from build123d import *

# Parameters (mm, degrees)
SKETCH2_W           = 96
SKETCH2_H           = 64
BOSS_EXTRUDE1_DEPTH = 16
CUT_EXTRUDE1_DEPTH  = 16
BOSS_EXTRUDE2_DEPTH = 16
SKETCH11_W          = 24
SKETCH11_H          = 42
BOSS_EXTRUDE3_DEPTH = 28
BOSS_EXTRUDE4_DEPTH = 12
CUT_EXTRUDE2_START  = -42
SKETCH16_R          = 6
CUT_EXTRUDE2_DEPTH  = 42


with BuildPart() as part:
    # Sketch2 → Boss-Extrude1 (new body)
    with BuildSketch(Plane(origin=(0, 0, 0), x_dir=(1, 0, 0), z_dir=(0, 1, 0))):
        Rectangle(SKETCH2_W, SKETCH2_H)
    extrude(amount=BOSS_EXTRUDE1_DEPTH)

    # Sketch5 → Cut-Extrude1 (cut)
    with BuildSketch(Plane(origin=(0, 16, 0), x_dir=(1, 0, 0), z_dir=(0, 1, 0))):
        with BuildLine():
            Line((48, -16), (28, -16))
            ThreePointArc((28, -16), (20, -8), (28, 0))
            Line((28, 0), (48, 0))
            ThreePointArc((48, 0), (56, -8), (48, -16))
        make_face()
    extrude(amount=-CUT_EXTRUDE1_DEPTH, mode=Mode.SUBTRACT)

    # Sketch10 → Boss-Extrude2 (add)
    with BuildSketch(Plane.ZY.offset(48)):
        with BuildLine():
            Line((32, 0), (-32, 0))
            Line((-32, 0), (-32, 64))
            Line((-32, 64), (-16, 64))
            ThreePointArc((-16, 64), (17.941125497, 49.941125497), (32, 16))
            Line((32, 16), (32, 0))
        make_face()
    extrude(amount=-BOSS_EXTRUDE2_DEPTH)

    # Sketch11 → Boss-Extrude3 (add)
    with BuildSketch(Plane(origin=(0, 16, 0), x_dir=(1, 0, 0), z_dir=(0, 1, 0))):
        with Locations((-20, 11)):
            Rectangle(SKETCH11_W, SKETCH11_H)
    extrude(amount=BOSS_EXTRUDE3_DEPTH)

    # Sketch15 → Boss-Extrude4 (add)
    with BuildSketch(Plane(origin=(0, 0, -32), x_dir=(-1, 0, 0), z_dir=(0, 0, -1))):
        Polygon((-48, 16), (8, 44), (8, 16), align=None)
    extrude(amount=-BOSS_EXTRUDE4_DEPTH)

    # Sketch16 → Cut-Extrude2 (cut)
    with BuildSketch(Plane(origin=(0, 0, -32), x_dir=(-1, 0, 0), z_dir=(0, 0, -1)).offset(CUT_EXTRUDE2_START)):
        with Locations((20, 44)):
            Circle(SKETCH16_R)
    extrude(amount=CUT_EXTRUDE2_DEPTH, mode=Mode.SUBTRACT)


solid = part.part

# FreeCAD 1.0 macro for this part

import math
import FreeCAD as App
import Part
import Sketcher

V = App.Vector
Q = App.Units.Quantity


def add_polygon(sketch, points):
    """Adds a closed chain of lines whose ends are joined by coincident constraints."""
    first, n = sketch.GeometryCount, len(points)
    for a, b in zip(points, points[1:] + points[:1]):
        sketch.addGeometry(Part.LineSegment(App.Vector(*a, 0), App.Vector(*b, 0)), False)
    for i in range(n):
        sketch.addConstraint(Sketcher.Constraint("Coincident", first + i, 2, first + (i + 1) % n, 1))

doc = App.newDocument("Part")
body = doc.addObject("PartDesign::Body", "Body")

# Sketch on XZ plane
sketch1 = body.newObject("Sketcher::SketchObject", "Sketch")
sketch1.AttachmentSupport = (doc.getObject("XZ_Plane"), [""])
sketch1.MapMode = "FlatFace"
add_polygon(sketch1, [(-48, -32), (-48, 32), (48, 32), (48, -32)])  # lines 0-3
sketch1.addConstraint([
    Sketcher.Constraint("Vertical", 0),
    Sketcher.Constraint("Horizontal", 1),
    Sketcher.Constraint("Vertical", 2),
    Sketcher.Constraint("Horizontal", 3),
    Sketcher.Constraint("Symmetric", 0, 2, 2, 2, -1, 1),
    Sketcher.Constraint("DistanceX", 1, 1, 1, 2, Q("96 mm")),
    Sketcher.Constraint("DistanceY", 0, 1, 0, 2, Q("64 mm")),
])
pad1 = body.newObject("PartDesign::Pad", "Pad")
pad1.Profile = sketch1
pad1.Length = 16
pad1.Reversed = True

# Sketch on XZ plane
sketch2 = body.newObject("Sketcher::SketchObject", "Sketch001")
sketch2.AttachmentSupport = (doc.getObject("XZ_Plane"), [""])
sketch2.MapMode = "FlatFace"
sketch2.AttachmentOffset = App.Placement(V(0, 0, -16), App.Rotation())
sketch2.addGeometry([
    Part.LineSegment(V(28, 16, 0), V(48, 16, 0)),
    Part.ArcOfCircle(Part.Circle(V(48, 8, 0), V(0, 0, 1), 8), math.radians(-90), math.radians(90)),
    Part.LineSegment(V(48, 0, 0), V(28, 0, 0)),
    Part.ArcOfCircle(Part.Circle(V(28, 8, 0), V(0, 0, 1), 8), math.radians(90), math.radians(270)),
], False)
sketch2.addConstraint([
    Sketcher.Constraint("Tangent", 0, 2, 1, 2),
    Sketcher.Constraint("Tangent", 1, 1, 2, 1),
    Sketcher.Constraint("Tangent", 2, 2, 3, 2),
    Sketcher.Constraint("Tangent", 3, 1, 0, 1),
    Sketcher.Constraint("Horizontal", 0),
    Sketcher.Constraint("Horizontal", 2),
    Sketcher.Constraint("PointOnObject", 1, 1, -1),
    Sketcher.Constraint("Radius", 1, Q("8 mm")),
    Sketcher.Constraint("DistanceX", 0, 1, 0, 2, Q("20 mm")),
    Sketcher.Constraint("DistanceX", -1, 1, 1, 3, Q("48 mm")),
])
pocket1 = body.newObject("PartDesign::Pocket", "Pocket")
pocket1.Profile = sketch2
pocket1.Length = 16
pocket1.Reversed = True

# Sketch on YZ plane
sketch3 = body.newObject("Sketcher::SketchObject", "Sketch002")
sketch3.AttachmentSupport = (doc.getObject("YZ_Plane"), [""])
sketch3.MapMode = "FlatFace"
sketch3.AttachmentOffset = App.Placement(V(0, 0, -48), App.Rotation())
sketch3.addGeometry([
    Part.LineSegment(V(0, -32, 0), V(0, 32, 0)),  # 0
    Part.LineSegment(V(0, 32, 0), V(16, 32, 0)),  # 1
    Part.ArcOfCircle(Part.Circle(V(16, -16, 0), V(0, 0, 1), 48), math.radians(0), math.radians(90)),  # 2
    Part.LineSegment(V(64, -16, 0), V(64, -32, 0)),  # 3
    Part.LineSegment(V(64, -32, 0), V(0, -32, 0)),  # 4
], False)
sketch3.addConstraint([
    Sketcher.Constraint("Coincident", 0, 2, 1, 1),
    Sketcher.Constraint("Tangent", 1, 2, 2, 2),
    Sketcher.Constraint("Tangent", 2, 1, 3, 1),
    Sketcher.Constraint("Coincident", 3, 2, 4, 1),
    Sketcher.Constraint("Coincident", 4, 2, 0, 1),
    Sketcher.Constraint("Vertical", 0),
    Sketcher.Constraint("Horizontal", 1),
    Sketcher.Constraint("Vertical", 3),
    Sketcher.Constraint("Horizontal", 4),
    Sketcher.Constraint("Symmetric", 0, 2, 4, 2, -1, 1),
    Sketcher.Constraint("Equal", 4, 0),
    Sketcher.Constraint("Radius", 2, Q("48 mm")),
    Sketcher.Constraint("DistanceX", 1, 1, 1, 2, Q("16 mm")),
])
pad2 = body.newObject("PartDesign::Pad", "Pad001")
pad2.Profile = sketch3
pad2.Length = 16

# Sketch on XZ plane
sketch4 = body.newObject("Sketcher::SketchObject", "Sketch003")
sketch4.AttachmentSupport = (doc.getObject("XZ_Plane"), [""])
sketch4.MapMode = "FlatFace"
sketch4.AttachmentOffset = App.Placement(V(0, 0, -16), App.Rotation())
add_polygon(sketch4, [(-32, -32), (-32, 10), (-8, 10), (-8, -32)])  # lines 0-3
sketch4.addConstraint([
    Sketcher.Constraint("Vertical", 0),
    Sketcher.Constraint("Horizontal", 1),
    Sketcher.Constraint("Vertical", 2),
    Sketcher.Constraint("Horizontal", 3),
    Sketcher.Constraint("DistanceX", 1, 1, 1, 2, Q("24 mm")),
    Sketcher.Constraint("DistanceY", 0, 1, 0, 2, Q("42 mm")),
    Sketcher.Constraint("DistanceX", 0, 2, -1, 1, Q("32 mm")),
    Sketcher.Constraint("DistanceY", -1, 1, 0, 2, Q("10 mm")),
])
pad3 = body.newObject("PartDesign::Pad", "Pad002")
pad3.Profile = sketch4
pad3.Length = 28
pad3.Reversed = True

# Sketch on XY plane
sketch5 = body.newObject("Sketcher::SketchObject", "Sketch004")
sketch5.AttachmentSupport = (doc.getObject("XY_Plane"), [""])
sketch5.MapMode = "FlatFace"
sketch5.AttachmentOffset = App.Placement(V(0, 0, -32), App.Rotation())
add_polygon(sketch5, [(-8, 44), (48, 16), (-8, 16)])  # lines 0-2
sketch5.addConstraint([
    Sketcher.Constraint("Horizontal", 1),
    Sketcher.Constraint("Vertical", 2),
    Sketcher.Constraint("DistanceX", 1, 2, 1, 1, Q("56 mm")),
    Sketcher.Constraint("DistanceY", 2, 1, 2, 2, Q("28 mm")),
    Sketcher.Constraint("DistanceX", -1, 1, 0, 2, Q("48 mm")),
    Sketcher.Constraint("DistanceY", -1, 1, 0, 2, Q("16 mm")),
])
pad4 = body.newObject("PartDesign::Pad", "Pad003")
pad4.Profile = sketch5
pad4.Length = 12

# Sketch on XY plane
sketch6 = body.newObject("Sketcher::SketchObject", "Sketch005")
sketch6.AttachmentSupport = (doc.getObject("XY_Plane"), [""])
sketch6.MapMode = "FlatFace"
sketch6.AttachmentOffset = App.Placement(V(0, 0, 10), App.Rotation())
sketch6.addGeometry(Part.Circle(V(-20, 44, 0), V(0, 0, 1), 6), False)
sketch6.addConstraint([
    Sketcher.Constraint("Diameter", 0, Q("12 mm")),
    Sketcher.Constraint("DistanceX", 0, 3, -1, 1, Q("20 mm")),
    Sketcher.Constraint("DistanceY", -1, 1, 0, 3, Q("44 mm")),
])
pocket2 = body.newObject("PartDesign::Pocket", "Pocket001")
pocket2.Profile = sketch6
pocket2.Length = 42

doc.recompute()
